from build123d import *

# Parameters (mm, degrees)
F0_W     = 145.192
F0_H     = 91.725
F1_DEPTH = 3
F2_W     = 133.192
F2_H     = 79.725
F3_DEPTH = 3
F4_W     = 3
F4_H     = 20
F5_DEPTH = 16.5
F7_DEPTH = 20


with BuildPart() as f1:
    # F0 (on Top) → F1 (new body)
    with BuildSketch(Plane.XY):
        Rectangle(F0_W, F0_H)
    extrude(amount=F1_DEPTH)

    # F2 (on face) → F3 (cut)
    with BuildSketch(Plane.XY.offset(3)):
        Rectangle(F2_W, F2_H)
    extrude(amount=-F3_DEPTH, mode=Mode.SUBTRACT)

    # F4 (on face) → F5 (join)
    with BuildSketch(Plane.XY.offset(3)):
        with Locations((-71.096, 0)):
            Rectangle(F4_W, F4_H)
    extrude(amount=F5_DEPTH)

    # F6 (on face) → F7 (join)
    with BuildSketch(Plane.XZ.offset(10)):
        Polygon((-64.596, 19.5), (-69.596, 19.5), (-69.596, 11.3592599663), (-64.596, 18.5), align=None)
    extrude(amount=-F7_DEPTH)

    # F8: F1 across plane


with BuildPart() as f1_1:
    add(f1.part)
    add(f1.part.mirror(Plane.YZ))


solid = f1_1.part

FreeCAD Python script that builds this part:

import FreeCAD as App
import Part
import Sketcher
from FreeCAD import Vector
Q = App.Units.Quantity

doc = App.newDocument("Part")
body = doc.addObject("PartDesign::Body", "Body")

sketch1 = doc.addObject("Sketcher::SketchObject", "Sketch")
body.addObject(sketch1)
sketch1.AttachmentSupport = (doc.XY_Plane, [""])
sketch1.MapMode = "FlatFace"
sketch1.addGeometry([
    Part.LineSegment(Vector(-72.596, 45.8625, 0), Vector(-72.596, -45.8625, 0)),
    Part.LineSegment(Vector(-72.596, -45.8625, 0), Vector(72.596, -45.8625, 0)),
    Part.LineSegment(Vector(72.596, -45.8625, 0), Vector(72.596, 45.8625, 0)),
    Part.LineSegment(Vector(72.596, 45.8625, 0), Vector(-72.596, 45.8625, 0)),
], False)
sketch1.addConstraint([
    Sketcher.Constraint("Coincident", 0, 2, 1, 1),
    Sketcher.Constraint("Coincident", 1, 2, 2, 1),
    Sketcher.Constraint("Coincident", 2, 2, 3, 1),
    Sketcher.Constraint("Coincident", 3, 2, 0, 1),
    Sketcher.Constraint("Vertical", 0),
    Sketcher.Constraint("Horizontal", 1),
    Sketcher.Constraint("Vertical", 2),
    Sketcher.Constraint("Horizontal", 3),
    Sketcher.Constraint("Symmetric", 0, 2, 2, 2, -1, 1),
    Sketcher.Constraint("DistanceX", 1, 1, 1, 2, Q("145.192 mm")),
    Sketcher.Constraint("DistanceY", 0, 2, 0, 1, Q("91.725 mm")),
])
pad1 = doc.addObject("PartDesign::Pad", "Pad")
body.addObject(pad1)
pad1.Profile = sketch1
pad1.Length = 3

sketch2 = doc.addObject("Sketcher::SketchObject", "Sketch001")
body.addObject(sketch2)
sketch2.AttachmentSupport = (doc.XY_Plane, [""])
sketch2.MapMode = "FlatFace"
sketch2.AttachmentOffset = App.Placement(Vector(0, 0, 3), App.Rotation())
sketch2.addGeometry([
    Part.LineSegment(Vector(-66.596, 39.8625, 0), Vector(-66.596, -39.8625, 0)),
    Part.LineSegment(Vector(-66.596, -39.8625, 0), Vector(66.596, -39.8625, 0)),
    Part.LineSegment(Vector(66.596, -39.8625, 0), Vector(66.596, 39.8625, 0)),
    Part.LineSegment(Vector(66.596, 39.8625, 0), Vector(-66.596, 39.8625, 0)),
], False)
sketch2.addConstraint([
    Sketcher.Constraint("Coincident", 0, 2, 1, 1),
    Sketcher.Constraint("Coincident", 1, 2, 2, 1),
    Sketcher.Constraint("Coincident", 2, 2, 3, 1),
    Sketcher.Constraint("Coincident", 3, 2, 0, 1),
    Sketcher.Constraint("Vertical", 0),
    Sketcher.Constraint("Horizontal", 1),
    Sketcher.Constraint("Vertical", 2),
    Sketcher.Constraint("Horizontal", 3),
    Sketcher.Constraint("Symmetric", 0, 2, 2, 2, -1, 1),
    Sketcher.Constraint("DistanceX", 1, 1, 1, 2, Q("133.192 mm")),
    Sketcher.Constraint("DistanceY", 0, 2, 0, 1, Q("79.725 mm")),
])
pocket1 = doc.addObject("PartDesign::Pocket", "Pocket")
body.addObject(pocket1)
pocket1.Profile = sketch2
pocket1.Length = 3

sketch3 = doc.addObject("Sketcher::SketchObject", "Sketch002")
body.addObject(sketch3)
sketch3.AttachmentSupport = (doc.XY_Plane, [""])
sketch3.MapMode = "FlatFace"
sketch3.AttachmentOffset = App.Placement(Vector(0, 0, 3), App.Rotation())
sketch3.addGeometry([
    Part.LineSegment(Vector(-72.596, 10, 0), Vector(-72.596, -10, 0)),
    Part.LineSegment(Vector(-72.596, -10, 0), Vector(-69.596, -10, 0)),
    Part.LineSegment(Vector(-69.596, -10, 0), Vector(-69.596, 10, 0)),
    Part.LineSegment(Vector(-69.596, 10, 0), Vector(-72.596, 10, 0)),
], False)
sketch3.addConstraint([
    Sketcher.Constraint("Coincident", 0, 2, 1, 1),
    Sketcher.Constraint("Coincident", 1, 2, 2, 1),
    Sketcher.Constraint("Coincident", 2, 2, 3, 1),
    Sketcher.Constraint("Coincident", 3, 2, 0, 1),
    Sketcher.Constraint("Vertical", 0),
    Sketcher.Constraint("Horizontal", 1),
    Sketcher.Constraint("Vertical", 2),
    Sketcher.Constraint("Horizontal", 3),
    Sketcher.Constraint("DistanceX", 1, 1, 1, 2, Q("3 mm")),
    Sketcher.Constraint("DistanceY", 0, 2, 0, 1, Q("20 mm")),
    Sketcher.Constraint("DistanceY", 0, 2, -1, 1, Q("10 mm")),
    Sketcher.Constraint("DistanceX", 0, 2, -1, 1, Q("72.596 mm")),
])
pad2 = doc.addObject("PartDesign::Pad", "Pad001")
body.addObject(pad2)
pad2.Profile = sketch3
pad2.Length = 16.5

sketch4 = doc.addObject("Sketcher::SketchObject", "Sketch003")
body.addObject(sketch4)
sketch4.AttachmentSupport = (doc.XZ_Plane, [""])
sketch4.MapMode = "FlatFace"
sketch4.AttachmentOffset = App.Placement(Vector(0, 0, 10), App.Rotation())
sketch4.addGeometry([
    Part.LineSegment(Vector(-64.596, 19.5, 0), Vector(-69.596, 19.5, 0)),
    Part.LineSegment(Vector(-69.596, 19.5, 0), Vector(-69.596, 11.35926, 0)),
    Part.LineSegment(Vector(-69.596, 11.35926, 0), Vector(-64.596, 18.5, 0)),
    Part.LineSegment(Vector(-64.596, 18.5, 0), Vector(-64.596, 19.5, 0)),
], False)
sketch4.addConstraint([
    Sketcher.Constraint("Coincident", 0, 2, 1, 1),
    Sketcher.Constraint("Coincident", 1, 2, 2, 1),
    Sketcher.Constraint("Coincident", 2, 2, 3, 1),
    Sketcher.Constraint("Coincident", 3, 2, 0, 1),
    Sketcher.Constraint("Horizontal", 0),
    Sketcher.Constraint("Vertical", 1),
    Sketcher.Constraint("Vertical", 3),
    Sketcher.Constraint("DistanceX", 0, 2, 0, 1, Q("5 mm")),
    Sketcher.Constraint("DistanceY", 3, 1, 3, 2, Q("1 mm")),
    Sketcher.Constraint("Angle", 2, Q("55 deg")),
    Sketcher.Constraint("DistanceY", -1, 1, 0, 2, Q("19.5 mm")),
    Sketcher.Constraint("DistanceX", 0, 2, -1, 1, Q("69.596 mm")),
])
pad3 = doc.addObject("PartDesign::Pad", "Pad002")
body.addObject(pad3)
pad3.Profile = sketch4
pad3.Length = 20
pad3.Reversed = True
body2 = doc.addObject("PartDesign::Body", "Body001")
doc.recompute()

body2.BaseFeature = body
doc.recompute()

mirroring = doc.addObject("Part::Mirroring", "Mirroring")
mirroring.Source = body
mirroring.Base = Vector(0, 0, 0)
mirroring.Normal = Vector(1, 0, 0)
body3 = doc.addObject("PartDesign::Body", "Body002")
body3.BaseFeature = mirroring
boolean = doc.addObject("PartDesign::Boolean", "Boolean")
body2.addObject(boolean)
boolean.Type = "Fuse"
boolean.addObjects([body3])
doc.recompute()
mirroring.Visibility = False

doc.recompute()
